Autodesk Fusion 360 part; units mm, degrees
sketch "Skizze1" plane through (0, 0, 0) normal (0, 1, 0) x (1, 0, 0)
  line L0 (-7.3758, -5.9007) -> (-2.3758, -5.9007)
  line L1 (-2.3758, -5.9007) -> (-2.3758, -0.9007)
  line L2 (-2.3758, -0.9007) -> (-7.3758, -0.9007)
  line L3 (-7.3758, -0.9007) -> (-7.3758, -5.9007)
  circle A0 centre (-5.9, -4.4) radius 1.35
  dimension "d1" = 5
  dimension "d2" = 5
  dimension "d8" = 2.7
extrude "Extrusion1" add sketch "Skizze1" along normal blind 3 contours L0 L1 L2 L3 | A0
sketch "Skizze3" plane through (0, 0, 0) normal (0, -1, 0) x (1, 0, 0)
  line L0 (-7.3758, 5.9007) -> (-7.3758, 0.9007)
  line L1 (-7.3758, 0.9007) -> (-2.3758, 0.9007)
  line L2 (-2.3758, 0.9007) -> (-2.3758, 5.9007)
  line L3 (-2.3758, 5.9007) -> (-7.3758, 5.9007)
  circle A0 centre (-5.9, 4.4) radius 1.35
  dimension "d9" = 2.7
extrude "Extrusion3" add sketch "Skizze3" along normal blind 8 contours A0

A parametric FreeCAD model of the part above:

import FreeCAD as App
import Part
import Sketcher
from FreeCAD import Vector


def add_polygon(sketch, points):
    """Adds a closed chain of lines whose ends are joined by coincident constraints."""
    first, n = sketch.GeometryCount, len(points)
    for a, b in zip(points, points[1:] + points[:1]):
        sketch.addGeometry(Part.LineSegment(App.Vector(*a, 0), App.Vector(*b, 0)), False)
    for i in range(n):
        sketch.addConstraint(Sketcher.Constraint("Coincident", first + i, 2, first + (i + 1) % n, 1))

doc = App.newDocument("Part")
body = doc.addObject("PartDesign::Body", "Body")

# Sketch on XZ plane
sketch1 = doc.addObject("Sketcher::SketchObject", "Sketch")
body.addObject(sketch1)
sketch1.AttachmentSupport = (doc.XZ_Plane, [""])
sketch1.MapMode = "FlatFace"
add_polygon(sketch1, [(-7, 1), (-7, 6), (-2, 6), (-2, 1)])  # lines 0-3
sketch1.addConstraint(Sketcher.Constraint("Vertical", 0))
sketch1.addConstraint(Sketcher.Constraint("Horizontal", 1))
sketch1.addConstraint(Sketcher.Constraint("Vertical", 2))
sketch1.addConstraint(Sketcher.Constraint("Horizontal", 3))
sketch1.addConstraint(Sketcher.Constraint("Equal", 3, 0))
sketch1.addConstraint(Sketcher.Constraint("DistanceX", 1, 1, 1, 2, 5.0))
sketch1.addConstraint(Sketcher.Constraint("DistanceX", 0, 2, -1, 1, 7.3758))
sketch1.addConstraint(Sketcher.Constraint("DistanceY", -1, 1, 0, 2, 5.9007))
pad1 = doc.addObject("PartDesign::Pad", "Pad")
body.addObject(pad1)
pad1.Profile = sketch1
pad1.Length = 3
pad1.Reversed = True

# Sketch on XZ plane
sketch2 = doc.addObject("Sketcher::SketchObject", "Sketch001")
body.addObject(sketch2)
sketch2.AttachmentSupport = (doc.XZ_Plane, [""])
sketch2.MapMode = "FlatFace"
sketch2.addGeometry(Part.Circle(Vector(-5.9, 4.4, 0), Vector(0, 0, 1), 1.4), False)
sketch2.addConstraint(Sketcher.Constraint("Diameter", 0, 2.7))
sketch2.addConstraint(Sketcher.Constraint("DistanceX", 0, 3, -1, 1, 5.9))
sketch2.addConstraint(Sketcher.Constraint("DistanceY", -1, 1, 0, 3, 4.4))
pad2 = doc.addObject("PartDesign::Pad", "Pad001")
body.addObject(pad2)
pad2.Profile = sketch2
pad2.Length = 8

doc.recompute()
